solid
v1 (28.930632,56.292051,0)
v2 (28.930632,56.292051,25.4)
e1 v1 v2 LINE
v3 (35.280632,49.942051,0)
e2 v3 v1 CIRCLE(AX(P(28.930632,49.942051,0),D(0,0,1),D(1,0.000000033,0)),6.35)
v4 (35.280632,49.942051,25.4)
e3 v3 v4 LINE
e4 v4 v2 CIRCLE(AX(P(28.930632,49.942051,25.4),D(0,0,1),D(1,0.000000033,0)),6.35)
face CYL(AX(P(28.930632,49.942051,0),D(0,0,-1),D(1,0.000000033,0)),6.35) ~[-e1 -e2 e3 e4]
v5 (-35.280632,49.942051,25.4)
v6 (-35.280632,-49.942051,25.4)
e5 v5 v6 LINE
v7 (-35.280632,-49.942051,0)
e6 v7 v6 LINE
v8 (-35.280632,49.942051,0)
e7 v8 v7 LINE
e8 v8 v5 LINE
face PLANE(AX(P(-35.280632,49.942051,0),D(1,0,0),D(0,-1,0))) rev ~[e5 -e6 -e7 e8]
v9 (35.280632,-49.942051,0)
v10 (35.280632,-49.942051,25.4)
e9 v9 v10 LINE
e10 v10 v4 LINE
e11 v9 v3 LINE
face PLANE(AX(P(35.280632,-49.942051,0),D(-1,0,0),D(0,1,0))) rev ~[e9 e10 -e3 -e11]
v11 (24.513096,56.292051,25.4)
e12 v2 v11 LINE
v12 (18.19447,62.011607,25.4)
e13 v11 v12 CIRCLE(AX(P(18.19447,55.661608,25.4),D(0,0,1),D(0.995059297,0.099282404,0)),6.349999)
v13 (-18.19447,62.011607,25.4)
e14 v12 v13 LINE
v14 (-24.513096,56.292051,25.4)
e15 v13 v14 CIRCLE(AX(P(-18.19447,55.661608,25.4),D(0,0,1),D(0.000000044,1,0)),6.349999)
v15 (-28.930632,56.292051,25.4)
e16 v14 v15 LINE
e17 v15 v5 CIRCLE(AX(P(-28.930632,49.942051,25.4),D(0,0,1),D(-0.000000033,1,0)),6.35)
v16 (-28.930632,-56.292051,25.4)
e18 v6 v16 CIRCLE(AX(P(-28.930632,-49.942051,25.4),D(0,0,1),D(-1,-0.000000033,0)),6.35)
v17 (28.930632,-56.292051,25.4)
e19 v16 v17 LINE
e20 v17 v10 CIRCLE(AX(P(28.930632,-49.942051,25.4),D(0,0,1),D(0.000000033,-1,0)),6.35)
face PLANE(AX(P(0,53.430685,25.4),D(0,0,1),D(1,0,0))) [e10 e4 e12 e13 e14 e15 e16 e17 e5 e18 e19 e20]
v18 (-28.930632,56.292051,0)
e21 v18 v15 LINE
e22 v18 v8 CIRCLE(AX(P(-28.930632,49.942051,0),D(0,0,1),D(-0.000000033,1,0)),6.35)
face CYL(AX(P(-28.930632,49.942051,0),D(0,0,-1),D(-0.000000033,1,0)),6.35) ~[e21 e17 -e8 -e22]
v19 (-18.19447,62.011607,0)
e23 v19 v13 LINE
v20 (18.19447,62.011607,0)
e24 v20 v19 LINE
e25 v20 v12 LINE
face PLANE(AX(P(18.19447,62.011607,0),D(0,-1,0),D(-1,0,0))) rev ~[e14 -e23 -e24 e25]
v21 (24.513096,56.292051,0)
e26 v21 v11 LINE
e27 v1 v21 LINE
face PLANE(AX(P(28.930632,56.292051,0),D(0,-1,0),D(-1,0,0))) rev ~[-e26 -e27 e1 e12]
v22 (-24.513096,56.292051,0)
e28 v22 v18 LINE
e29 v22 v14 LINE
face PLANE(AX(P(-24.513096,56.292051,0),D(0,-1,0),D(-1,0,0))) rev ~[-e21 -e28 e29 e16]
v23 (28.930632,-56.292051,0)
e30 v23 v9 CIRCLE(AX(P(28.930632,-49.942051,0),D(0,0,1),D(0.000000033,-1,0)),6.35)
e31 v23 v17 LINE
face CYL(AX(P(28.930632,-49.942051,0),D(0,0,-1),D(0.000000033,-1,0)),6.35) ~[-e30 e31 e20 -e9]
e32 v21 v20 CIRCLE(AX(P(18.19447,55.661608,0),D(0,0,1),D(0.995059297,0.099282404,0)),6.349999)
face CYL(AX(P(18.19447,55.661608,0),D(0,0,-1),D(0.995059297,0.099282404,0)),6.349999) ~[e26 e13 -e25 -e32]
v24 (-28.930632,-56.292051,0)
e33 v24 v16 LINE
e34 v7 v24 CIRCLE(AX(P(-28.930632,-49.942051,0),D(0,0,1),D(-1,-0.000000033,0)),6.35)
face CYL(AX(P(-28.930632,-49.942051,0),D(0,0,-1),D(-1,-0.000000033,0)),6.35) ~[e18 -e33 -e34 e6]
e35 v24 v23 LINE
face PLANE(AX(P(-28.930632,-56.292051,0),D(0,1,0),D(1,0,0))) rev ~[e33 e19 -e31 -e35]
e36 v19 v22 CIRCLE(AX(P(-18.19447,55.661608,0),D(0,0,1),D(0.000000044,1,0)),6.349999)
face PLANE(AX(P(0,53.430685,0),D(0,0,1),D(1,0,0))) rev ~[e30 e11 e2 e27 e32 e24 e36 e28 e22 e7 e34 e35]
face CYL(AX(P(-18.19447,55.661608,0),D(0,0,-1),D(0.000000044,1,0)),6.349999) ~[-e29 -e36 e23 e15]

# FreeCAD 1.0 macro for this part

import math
import FreeCAD as App
import Part
import Sketcher
Q = App.Units.Quantity

doc = App.newDocument("Part")
params = doc.addObject("Spreadsheet::Sheet", "Params")
for row, (alias, value) in enumerate([
    ("sketch1_radius", "0.25 in"),
    ("pad1_length", "1 in"),
], start=1):
    params.set(f"A{row}", alias)
    params.set(f"B{row}", "=" + value)
    params.setAlias(f"B{row}", alias)

body = doc.addObject("PartDesign::Body", "Body")

sketch1 = body.newObject("Sketcher::SketchObject", "Sketch")
sketch1.AttachmentSupport = (doc.getObject("XY_Plane"), [""])
sketch1.MapMode = "FlatFace"
sketch1.addGeometry([
    Part.ArcOfCircle(Part.Circle(App.Vector(-28.930632, 49.942051, 0), App.Vector(0, 0, 1), 6.35), math.radians(90.000002), math.radians(179.999998)),
    Part.LineSegment(App.Vector(-35.280632, 49.942051, 0), App.Vector(-35.280632, -49.942051, 0)),
    Part.ArcOfCircle(Part.Circle(App.Vector(-28.930632, -49.942051, 0), App.Vector(0, 0, 1), 6.35), math.radians(-179.999998), math.radians(-90.000002)),
    Part.LineSegment(App.Vector(-28.930632, -56.292051, 0), App.Vector(28.930632, -56.292051, 0)),
    Part.ArcOfCircle(Part.Circle(App.Vector(28.930632, -49.942051, 0), App.Vector(0, 0, 1), 6.35), math.radians(-89.999998), math.radians(-0.000002)),
    Part.LineSegment(App.Vector(35.280632, -49.942051, 0), App.Vector(35.280632, 49.942051, 0)),
    Part.ArcOfCircle(Part.Circle(App.Vector(28.930632, 49.942051, 0), App.Vector(0, 0, 1), 6.35), math.radians(0.000002), math.radians(89.999998)),
    Part.LineSegment(App.Vector(28.930632, 56.292051, 0), App.Vector(24.513096, 56.292051, 0)),
    Part.ArcOfCircle(Part.Circle(App.Vector(18.19447, 55.661608, 0), App.Vector(0, 0, 1), 6.349999), math.radians(5.69785), math.radians(90.000002)),
    Part.LineSegment(App.Vector(18.19447, 62.011607, 0), App.Vector(-18.19447, 62.011607, 0)),
    Part.ArcOfCircle(Part.Circle(App.Vector(-18.19447, 55.661608, 0), App.Vector(0, 0, 1), 6.349999), math.radians(89.999998), math.radians(174.30215)),
    Part.LineSegment(App.Vector(-24.513096, 56.292051, 0), App.Vector(-28.930632, 56.292051, 0)),
], False)
sketch1.addConstraint([
    Sketcher.Constraint("Tangent", 0, 2, 1, 1),
    Sketcher.Constraint("Tangent", 1, 2, 2, 1),
    Sketcher.Constraint("Tangent", 2, 2, 3, 1),
    Sketcher.Constraint("Tangent", 3, 2, 4, 1),
    Sketcher.Constraint("Tangent", 4, 2, 5, 1),
    Sketcher.Constraint("Tangent", 5, 2, 6, 1),
    Sketcher.Constraint("Tangent", 6, 2, 7, 1),
    Sketcher.Constraint("Coincident", 7, 2, 8, 1),
    Sketcher.Constraint("Tangent", 8, 2, 9, 1),
    Sketcher.Constraint("Tangent", 9, 2, 10, 1),
    Sketcher.Constraint("Coincident", 10, 2, 11, 1),
    Sketcher.Constraint("Tangent", 11, 2, 0, 1),
    Sketcher.Constraint("Vertical", 1),
    Sketcher.Constraint("Horizontal", 3),
    Sketcher.Constraint("Vertical", 5),
    Sketcher.Constraint("Horizontal", 7),
    Sketcher.Constraint("Horizontal", 9),
    Sketcher.Constraint("Horizontal", 11),
    Sketcher.Constraint("Equal", 0, 2),
    Sketcher.Constraint("Equal", 2, 4),
    Sketcher.Constraint("Equal", 4, 6),
    Sketcher.Constraint("Equal", 6, 8),
    Sketcher.Constraint("Equal", 8, 10),
    Sketcher.Constraint("Symmetric", 0, 3, 4, 3, -1, 1),
    Sketcher.Constraint("Symmetric", 7, 2, 10, 2, -2),
    Sketcher.Constraint("Radius", 0, Q("0.25 in")),
    Sketcher.Constraint("DistanceY", 1, 2, 1, 1, Q("99.884102 mm")),
    Sketcher.Constraint("DistanceX", 9, 2, 9, 1, Q("36.38894 mm")),
    Sketcher.Constraint("DistanceX", 3, 1, 3, 2, Q("57.861264 mm")),
    Sketcher.Constraint("DistanceX", 7, 2, 7, 1, Q("4.417536 mm")),
])
sketch1.setExpression("Constraints[25]", "Params.sketch1_radius")
pad1 = body.newObject("PartDesign::Pad", "Pad")
pad1.Profile = sketch1
pad1.setExpression("Length", "Params.pad1_length")

doc.recompute()
